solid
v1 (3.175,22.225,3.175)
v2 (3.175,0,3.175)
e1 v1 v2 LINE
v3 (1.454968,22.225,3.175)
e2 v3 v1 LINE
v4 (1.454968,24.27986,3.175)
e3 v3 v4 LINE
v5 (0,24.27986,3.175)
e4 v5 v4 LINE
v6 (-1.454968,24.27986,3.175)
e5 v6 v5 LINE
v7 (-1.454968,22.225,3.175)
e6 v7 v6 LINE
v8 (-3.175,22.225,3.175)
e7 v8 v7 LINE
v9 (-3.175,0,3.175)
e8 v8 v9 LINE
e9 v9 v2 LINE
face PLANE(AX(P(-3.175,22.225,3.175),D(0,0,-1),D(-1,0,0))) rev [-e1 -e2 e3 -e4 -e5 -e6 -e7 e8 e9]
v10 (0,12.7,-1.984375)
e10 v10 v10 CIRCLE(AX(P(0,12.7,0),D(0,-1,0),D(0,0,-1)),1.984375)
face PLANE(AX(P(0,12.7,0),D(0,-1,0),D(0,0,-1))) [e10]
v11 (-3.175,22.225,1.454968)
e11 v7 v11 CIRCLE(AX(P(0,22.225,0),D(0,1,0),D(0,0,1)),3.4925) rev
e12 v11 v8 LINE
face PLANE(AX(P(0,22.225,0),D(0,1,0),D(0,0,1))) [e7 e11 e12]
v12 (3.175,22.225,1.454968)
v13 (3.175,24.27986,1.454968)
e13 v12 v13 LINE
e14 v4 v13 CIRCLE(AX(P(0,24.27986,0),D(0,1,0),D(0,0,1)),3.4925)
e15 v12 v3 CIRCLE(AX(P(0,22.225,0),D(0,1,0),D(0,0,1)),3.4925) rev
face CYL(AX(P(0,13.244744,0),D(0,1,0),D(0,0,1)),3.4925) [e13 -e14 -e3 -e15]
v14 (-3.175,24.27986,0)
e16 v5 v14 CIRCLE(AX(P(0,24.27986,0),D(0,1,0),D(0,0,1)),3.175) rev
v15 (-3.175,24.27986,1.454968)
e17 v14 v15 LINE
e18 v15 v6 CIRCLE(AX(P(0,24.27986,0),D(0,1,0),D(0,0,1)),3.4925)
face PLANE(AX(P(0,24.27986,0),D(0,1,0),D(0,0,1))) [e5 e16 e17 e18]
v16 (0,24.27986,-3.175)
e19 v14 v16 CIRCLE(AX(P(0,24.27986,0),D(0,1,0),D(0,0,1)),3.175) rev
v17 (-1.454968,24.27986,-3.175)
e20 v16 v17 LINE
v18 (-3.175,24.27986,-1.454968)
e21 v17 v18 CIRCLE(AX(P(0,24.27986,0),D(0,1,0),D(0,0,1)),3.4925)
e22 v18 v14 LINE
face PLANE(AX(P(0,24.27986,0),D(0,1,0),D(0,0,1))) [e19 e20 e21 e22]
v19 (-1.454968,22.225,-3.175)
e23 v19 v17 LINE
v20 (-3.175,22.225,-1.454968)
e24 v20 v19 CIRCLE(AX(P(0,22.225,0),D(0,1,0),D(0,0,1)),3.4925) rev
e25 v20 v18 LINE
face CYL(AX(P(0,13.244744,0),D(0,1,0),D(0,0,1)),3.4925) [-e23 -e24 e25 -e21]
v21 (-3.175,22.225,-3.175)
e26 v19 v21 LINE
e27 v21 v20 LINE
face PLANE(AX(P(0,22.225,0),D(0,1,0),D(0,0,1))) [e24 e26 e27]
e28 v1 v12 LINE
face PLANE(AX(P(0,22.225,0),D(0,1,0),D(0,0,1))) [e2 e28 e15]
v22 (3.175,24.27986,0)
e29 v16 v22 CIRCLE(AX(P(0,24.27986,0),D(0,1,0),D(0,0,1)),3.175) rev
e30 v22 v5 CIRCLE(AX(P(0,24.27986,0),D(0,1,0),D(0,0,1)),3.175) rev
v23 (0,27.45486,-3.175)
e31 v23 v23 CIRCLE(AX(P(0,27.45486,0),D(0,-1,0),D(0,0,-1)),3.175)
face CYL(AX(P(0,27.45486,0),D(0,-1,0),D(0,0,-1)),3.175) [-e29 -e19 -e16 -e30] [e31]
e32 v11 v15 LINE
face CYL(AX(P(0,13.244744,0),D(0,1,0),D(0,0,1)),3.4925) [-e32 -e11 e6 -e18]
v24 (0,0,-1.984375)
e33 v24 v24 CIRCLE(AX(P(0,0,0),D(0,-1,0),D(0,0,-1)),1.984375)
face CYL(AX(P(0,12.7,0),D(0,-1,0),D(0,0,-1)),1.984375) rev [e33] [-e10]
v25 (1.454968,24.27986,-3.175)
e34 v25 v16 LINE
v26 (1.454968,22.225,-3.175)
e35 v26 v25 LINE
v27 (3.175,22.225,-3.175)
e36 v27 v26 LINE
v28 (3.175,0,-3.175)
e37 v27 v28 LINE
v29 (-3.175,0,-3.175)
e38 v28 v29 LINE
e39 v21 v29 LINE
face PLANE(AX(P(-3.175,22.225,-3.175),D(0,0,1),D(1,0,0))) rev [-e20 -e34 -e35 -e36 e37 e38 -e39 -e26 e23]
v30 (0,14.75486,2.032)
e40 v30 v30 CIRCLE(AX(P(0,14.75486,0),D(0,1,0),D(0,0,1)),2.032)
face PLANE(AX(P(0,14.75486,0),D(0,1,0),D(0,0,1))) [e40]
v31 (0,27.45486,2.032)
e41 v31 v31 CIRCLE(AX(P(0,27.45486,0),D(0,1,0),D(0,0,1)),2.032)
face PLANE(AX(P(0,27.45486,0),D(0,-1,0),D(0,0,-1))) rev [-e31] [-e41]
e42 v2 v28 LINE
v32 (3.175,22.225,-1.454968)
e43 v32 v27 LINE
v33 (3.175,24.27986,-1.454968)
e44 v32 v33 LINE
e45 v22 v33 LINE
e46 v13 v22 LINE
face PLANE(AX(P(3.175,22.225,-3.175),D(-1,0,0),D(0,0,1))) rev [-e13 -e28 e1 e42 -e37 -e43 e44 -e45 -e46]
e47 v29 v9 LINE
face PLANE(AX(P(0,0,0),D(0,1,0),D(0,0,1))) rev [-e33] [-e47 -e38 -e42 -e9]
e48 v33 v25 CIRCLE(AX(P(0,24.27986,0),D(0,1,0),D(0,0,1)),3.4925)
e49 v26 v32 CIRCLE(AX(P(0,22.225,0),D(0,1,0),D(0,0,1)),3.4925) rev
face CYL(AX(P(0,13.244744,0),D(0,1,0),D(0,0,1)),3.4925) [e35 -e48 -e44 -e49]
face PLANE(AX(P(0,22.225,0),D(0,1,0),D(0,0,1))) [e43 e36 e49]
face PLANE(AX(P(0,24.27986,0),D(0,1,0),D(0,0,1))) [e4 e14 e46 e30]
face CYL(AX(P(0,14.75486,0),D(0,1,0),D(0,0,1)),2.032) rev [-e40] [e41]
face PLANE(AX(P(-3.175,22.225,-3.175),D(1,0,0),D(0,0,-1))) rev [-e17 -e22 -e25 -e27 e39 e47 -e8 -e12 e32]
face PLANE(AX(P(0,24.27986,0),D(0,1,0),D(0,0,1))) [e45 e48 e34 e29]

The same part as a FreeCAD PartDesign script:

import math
import FreeCAD as App
import Part
import Sketcher
Q = App.Units.Quantity


def add_polygon(sketch, points):
    """Adds a closed chain of lines whose ends are joined by coincident constraints."""
    first, n = sketch.GeometryCount, len(points)
    for a, b in zip(points, points[1:] + points[:1]):
        sketch.addGeometry(Part.LineSegment(App.Vector(*a, 0), App.Vector(*b, 0)), False)
    for i in range(n):
        sketch.addConstraint(Sketcher.Constraint("Coincident", first + i, 2, first + (i + 1) % n, 1))

doc = App.newDocument("Part")
body = doc.addObject("PartDesign::Body", "Body")

# Sketch on XZ plane
sketch1 = body.newObject("Sketcher::SketchObject", "Sketch")
sketch1.AttachmentSupport = (doc.getObject("XZ_Plane"), [""])
sketch1.MapMode = "FlatFace"
add_polygon(sketch1, [(-3, -3), (-3, 3), (3, 3), (3, -3)])  # lines 0-3
sketch1.addConstraint([
    Sketcher.Constraint("Vertical", 0),
    Sketcher.Constraint("Horizontal", 1),
    Sketcher.Constraint("Vertical", 2),
    Sketcher.Constraint("Horizontal", 3),
    Sketcher.Constraint("Symmetric", 0, 2, 2, 2, -1, 1),
    Sketcher.Constraint("Equal", 3, 0),
    Sketcher.Constraint("DistanceX", 1, 1, 1, 2, Q("0.25 in")),
])
pad1 = body.newObject("PartDesign::Pad", "Pad")
pad1.Profile = sketch1
pad1.Length = Q("0.875 in")
pad1.Reversed = True

# Sketch on XZ plane
sketch2 = body.newObject("Sketcher::SketchObject", "Sketch001")
sketch2.AttachmentSupport = (doc.getObject("XZ_Plane"), [""])
sketch2.MapMode = "FlatFace"
sketch2.addGeometry(Part.Circle(App.Vector(0, 0, 0), App.Vector(0, 0, 1), 3.2), False)
sketch2.addConstraint([
    Sketcher.Constraint("Coincident", 0, 3, -1, 1),
    Sketcher.Constraint("Diameter", 0, Q("0.25 in")),
])
pad2 = body.newObject("PartDesign::Pad", "Pad001")
pad2.Profile = sketch2
pad2.Length = Q("1.0809 in")
pad2.Reversed = True

# Sketch on XZ plane
sketch3 = body.newObject("Sketcher::SketchObject", "Sketch002")
sketch3.AttachmentSupport = (doc.getObject("XZ_Plane"), [""])
sketch3.MapMode = "FlatFace"
sketch3.AttachmentOffset = App.Placement(App.Vector(0, 0, -0.9559 * 25.4), App.Rotation())
sketch3.addGeometry([
    Part.ArcOfCircle(Part.Circle(App.Vector(0, 0, 0), App.Vector(0, 0, 1), 3.5), math.radians(115), math.radians(155)),  # 0
    Part.LineSegment(App.Vector(-1.5, 3.2, 0), App.Vector(1.5, 3.2, 0)),  # 1
    Part.ArcOfCircle(Part.Circle(App.Vector(0, 0, 0), App.Vector(0, 0, 1), 3.5), math.radians(25), math.radians(65)),  # 2
    Part.LineSegment(App.Vector(3.2, 1.5, 0), App.Vector(3.2, -1.5, 0)),  # 3
    Part.ArcOfCircle(Part.Circle(App.Vector(0, 0, 0), App.Vector(0, 0, 1), 3.5), math.radians(-65), math.radians(-25)),  # 4
    Part.LineSegment(App.Vector(1.5, -3.2, 0), App.Vector(-1.5, -3.2, 0)),  # 5
    Part.ArcOfCircle(Part.Circle(App.Vector(0, 0, 0), App.Vector(0, 0, 1), 3.5), math.radians(-155), math.radians(-115)),  # 6
    Part.LineSegment(App.Vector(-3.2, -1.5, 0), App.Vector(-3.2, 1.5, 0)),  # 7
], False)
sketch3.addConstraint([
    Sketcher.Constraint("Coincident", 0, 1, 1, 1),
    Sketcher.Constraint("Coincident", 1, 2, 2, 2),
    Sketcher.Constraint("Coincident", 2, 1, 3, 1),
    Sketcher.Constraint("Coincident", 3, 2, 4, 2),
    Sketcher.Constraint("Coincident", 4, 1, 5, 1),
    Sketcher.Constraint("Coincident", 5, 2, 6, 2),
    Sketcher.Constraint("Coincident", 6, 1, 7, 1),
    Sketcher.Constraint("Coincident", 7, 2, 0, 2),
    Sketcher.Constraint("Horizontal", 1),
    Sketcher.Constraint("Vertical", 3),
    Sketcher.Constraint("Horizontal", 5),
    Sketcher.Constraint("Vertical", 7),
    Sketcher.Constraint("Coincident", 0, 3, -1, 1),
    Sketcher.Constraint("Coincident", 2, 3, -1, 1),
    Sketcher.Constraint("Coincident", 4, 3, -1, 1),
    Sketcher.Constraint("Coincident", 6, 3, -1, 1),
    Sketcher.Constraint("Equal", 0, 2),
    Sketcher.Constraint("Equal", 2, 4),
    Sketcher.Constraint("Equal", 4, 6),
    Sketcher.Constraint("Horizontal", 3, 2, 6, 1),
    Sketcher.Constraint("Vertical", 1, 2, 4, 1),
    Sketcher.Constraint("Equal", 5, 3),
    Sketcher.Constraint("Radius", 0, Q("0.1375 in")),
    Sketcher.Constraint("DistanceY", -1, 1, 0, 1, Q("0.125 in")),
])
pad3 = body.newObject("PartDesign::Pad", "Pad002")
pad3.Profile = sketch3
pad3.Length = Q("0.0809 in")

# Sketch on XZ plane
sketch4 = body.newObject("Sketcher::SketchObject", "Sketch003")
sketch4.AttachmentSupport = (doc.getObject("XZ_Plane"), [""])
sketch4.MapMode = "FlatFace"
sketch4.addGeometry(Part.Circle(App.Vector(0, 0, 0), App.Vector(0, 0, 1), 2), False)
sketch4.addConstraint([
    Sketcher.Constraint("Coincident", 0, 3, -1, 1),
    Sketcher.Constraint("Diameter", 0, Q("0.15625 in")),
])
pocket1 = body.newObject("PartDesign::Pocket", "Pocket")
pocket1.Profile = sketch4
pocket1.Length = Q("0.5 in")

# Sketch on XZ plane
sketch5 = body.newObject("Sketcher::SketchObject", "Sketch004")
sketch5.AttachmentSupport = (doc.getObject("XZ_Plane"), [""])
sketch5.MapMode = "FlatFace"
sketch5.AttachmentOffset = App.Placement(App.Vector(0, 0, -1.0809 * 25.4), App.Rotation())
sketch5.addGeometry(Part.Circle(App.Vector(0, 0, 0), App.Vector(0, 0, 1), 2), False)
sketch5.addConstraint([
    Sketcher.Constraint("Coincident", 0, 3, -1, 1),
    Sketcher.Constraint("Diameter", 0, Q("0.16 in")),
])
pocket2 = body.newObject("PartDesign::Pocket", "Pocket001")
pocket2.Profile = sketch5
pocket2.Length = Q("0.5 in")
pocket2.Reversed = True

doc.recompute()
